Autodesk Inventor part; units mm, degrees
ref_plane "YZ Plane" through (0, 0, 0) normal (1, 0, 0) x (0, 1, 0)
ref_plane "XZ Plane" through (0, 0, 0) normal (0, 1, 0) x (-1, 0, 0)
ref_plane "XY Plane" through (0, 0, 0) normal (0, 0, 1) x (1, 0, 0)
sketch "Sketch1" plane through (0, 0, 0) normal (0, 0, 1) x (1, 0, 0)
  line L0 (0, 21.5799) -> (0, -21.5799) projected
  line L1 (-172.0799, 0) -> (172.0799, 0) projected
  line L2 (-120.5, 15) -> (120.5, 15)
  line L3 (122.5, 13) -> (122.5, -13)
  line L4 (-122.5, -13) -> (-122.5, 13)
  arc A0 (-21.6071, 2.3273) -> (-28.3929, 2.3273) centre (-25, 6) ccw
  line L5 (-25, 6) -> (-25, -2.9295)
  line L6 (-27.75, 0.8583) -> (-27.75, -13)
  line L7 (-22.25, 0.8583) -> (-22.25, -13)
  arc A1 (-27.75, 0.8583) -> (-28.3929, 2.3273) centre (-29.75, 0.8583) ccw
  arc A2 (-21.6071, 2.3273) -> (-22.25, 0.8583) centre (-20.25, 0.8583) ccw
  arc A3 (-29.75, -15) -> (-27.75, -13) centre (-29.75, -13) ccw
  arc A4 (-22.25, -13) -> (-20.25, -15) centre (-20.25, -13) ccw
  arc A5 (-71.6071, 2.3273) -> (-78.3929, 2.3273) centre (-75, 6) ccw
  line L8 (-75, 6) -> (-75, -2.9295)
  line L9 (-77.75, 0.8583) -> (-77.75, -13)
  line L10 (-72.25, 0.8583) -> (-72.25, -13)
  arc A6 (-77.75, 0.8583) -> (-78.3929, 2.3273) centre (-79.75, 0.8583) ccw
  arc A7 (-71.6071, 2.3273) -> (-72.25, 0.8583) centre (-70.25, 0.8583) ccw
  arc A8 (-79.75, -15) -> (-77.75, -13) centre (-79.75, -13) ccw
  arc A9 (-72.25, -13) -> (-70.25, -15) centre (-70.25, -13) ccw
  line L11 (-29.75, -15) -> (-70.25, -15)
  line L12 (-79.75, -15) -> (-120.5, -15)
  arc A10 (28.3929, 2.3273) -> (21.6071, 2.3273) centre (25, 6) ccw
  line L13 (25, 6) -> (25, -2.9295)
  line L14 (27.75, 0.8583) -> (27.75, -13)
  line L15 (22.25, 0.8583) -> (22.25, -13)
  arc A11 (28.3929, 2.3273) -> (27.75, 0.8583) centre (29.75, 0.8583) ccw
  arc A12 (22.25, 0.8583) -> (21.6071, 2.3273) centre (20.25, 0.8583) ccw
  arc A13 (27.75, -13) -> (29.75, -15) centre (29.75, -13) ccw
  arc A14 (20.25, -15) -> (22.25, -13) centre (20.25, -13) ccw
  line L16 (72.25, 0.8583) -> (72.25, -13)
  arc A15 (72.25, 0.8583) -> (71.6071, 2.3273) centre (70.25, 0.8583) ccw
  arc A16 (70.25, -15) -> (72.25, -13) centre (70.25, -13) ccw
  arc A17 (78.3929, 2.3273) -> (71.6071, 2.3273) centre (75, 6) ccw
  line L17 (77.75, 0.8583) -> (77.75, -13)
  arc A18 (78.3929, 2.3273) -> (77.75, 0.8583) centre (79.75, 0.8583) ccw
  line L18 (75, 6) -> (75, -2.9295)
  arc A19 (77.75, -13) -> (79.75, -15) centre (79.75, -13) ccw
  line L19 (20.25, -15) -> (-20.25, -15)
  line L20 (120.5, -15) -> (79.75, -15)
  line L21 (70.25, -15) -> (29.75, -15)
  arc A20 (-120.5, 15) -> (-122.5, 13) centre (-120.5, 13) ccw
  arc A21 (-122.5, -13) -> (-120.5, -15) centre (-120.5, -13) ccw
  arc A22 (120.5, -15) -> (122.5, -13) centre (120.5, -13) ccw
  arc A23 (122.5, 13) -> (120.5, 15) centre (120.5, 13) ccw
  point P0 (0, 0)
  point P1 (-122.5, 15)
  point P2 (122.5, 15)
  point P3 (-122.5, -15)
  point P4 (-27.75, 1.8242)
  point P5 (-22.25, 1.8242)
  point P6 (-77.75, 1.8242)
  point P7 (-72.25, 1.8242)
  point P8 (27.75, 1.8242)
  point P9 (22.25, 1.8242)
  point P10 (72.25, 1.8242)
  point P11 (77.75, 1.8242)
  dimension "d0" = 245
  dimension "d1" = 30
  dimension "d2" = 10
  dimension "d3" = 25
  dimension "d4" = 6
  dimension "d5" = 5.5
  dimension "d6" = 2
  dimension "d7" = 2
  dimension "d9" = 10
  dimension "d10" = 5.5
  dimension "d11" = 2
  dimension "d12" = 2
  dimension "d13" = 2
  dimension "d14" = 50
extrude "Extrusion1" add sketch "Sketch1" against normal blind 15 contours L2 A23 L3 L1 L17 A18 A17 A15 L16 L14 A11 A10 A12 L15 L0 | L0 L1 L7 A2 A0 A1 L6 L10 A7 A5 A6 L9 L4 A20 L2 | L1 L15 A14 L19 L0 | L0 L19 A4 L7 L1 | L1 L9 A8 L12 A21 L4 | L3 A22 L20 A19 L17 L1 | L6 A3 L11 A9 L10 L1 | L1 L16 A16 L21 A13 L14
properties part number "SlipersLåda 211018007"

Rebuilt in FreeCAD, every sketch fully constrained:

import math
import FreeCAD as App
import Part
import Sketcher
Q = App.Units.Quantity

doc = App.newDocument("Part")
body = doc.addObject("PartDesign::Body", "Body")

sketch1 = doc.addObject("Sketcher::SketchObject", "Sketch")
body.addObject(sketch1)
sketch1.AttachmentSupport = (doc.XY_Plane, [""])
sketch1.MapMode = "FlatFace"
sketch1.addGeometry([
    Part.LineSegment(App.Vector(120.5, 15, 0), App.Vector(-120.5, 15, 0)),
    Part.ArcOfCircle(Part.Circle(App.Vector(-120.5, 13, 0), App.Vector(0, 0, 1), 2), math.radians(90), math.radians(180)),
    Part.LineSegment(App.Vector(-122.5, 13, 0), App.Vector(-122.5, -13, 0)),
    Part.ArcOfCircle(Part.Circle(App.Vector(-120.5, -13, 0), App.Vector(0, 0, 1), 2), math.radians(180), math.radians(270)),
    Part.LineSegment(App.Vector(-120.5, -15, 0), App.Vector(-79.8, -15, 0)),
    Part.ArcOfCircle(Part.Circle(App.Vector(-79.8, -13, 0), App.Vector(0, 0, 1), 2), math.radians(-90), math.radians(0)),
    Part.LineSegment(App.Vector(-77.8, -13, 0), App.Vector(-77.8, 0.9, 0)),
    Part.ArcOfCircle(Part.Circle(App.Vector(-79.8, 0.9, 0), App.Vector(0, 0, 1), 2), math.radians(0), math.radians(47)),
    Part.ArcOfCircle(Part.Circle(App.Vector(-75, 6, 0), App.Vector(0, 0, 1), 5), math.radians(-47), math.radians(227)),
    Part.ArcOfCircle(Part.Circle(App.Vector(-70.2, 0.9, 0), App.Vector(0, 0, 1), 2), math.radians(133), math.radians(180)),
    Part.LineSegment(App.Vector(-72.2, 0.9, 0), App.Vector(-72.2, -13, 0)),
    Part.ArcOfCircle(Part.Circle(App.Vector(-70.2, -13, 0), App.Vector(0, 0, 1), 2), math.radians(180), math.radians(270)),
    Part.LineSegment(App.Vector(-70.2, -15, 0), App.Vector(-29.8, -15, 0)),
    Part.ArcOfCircle(Part.Circle(App.Vector(-29.8, -13, 0), App.Vector(0, 0, 1), 2), math.radians(-90), math.radians(0)),
    Part.LineSegment(App.Vector(-27.8, -13, 0), App.Vector(-27.8, 0.9, 0)),
    Part.ArcOfCircle(Part.Circle(App.Vector(-29.8, 0.9, 0), App.Vector(0, 0, 1), 2), math.radians(0), math.radians(47)),
    Part.ArcOfCircle(Part.Circle(App.Vector(-25, 6, 0), App.Vector(0, 0, 1), 5), math.radians(-47), math.radians(227)),
    Part.ArcOfCircle(Part.Circle(App.Vector(-20.2, 0.9, 0), App.Vector(0, 0, 1), 2), math.radians(133), math.radians(180)),
    Part.LineSegment(App.Vector(-22.2, 0.9, 0), App.Vector(-22.2, -13, 0)),
    Part.ArcOfCircle(Part.Circle(App.Vector(-20.2, -13, 0), App.Vector(0, 0, 1), 2), math.radians(180), math.radians(270)),
    Part.LineSegment(App.Vector(-20.2, -15, 0), App.Vector(20.2, -15, 0)),
    Part.ArcOfCircle(Part.Circle(App.Vector(20.2, -13, 0), App.Vector(0, 0, 1), 2), math.radians(-90), math.radians(0)),
    Part.LineSegment(App.Vector(22.2, -13, 0), App.Vector(22.2, 0.9, 0)),
    Part.ArcOfCircle(Part.Circle(App.Vector(20.2, 0.9, 0), App.Vector(0, 0, 1), 2), math.radians(0), math.radians(47)),
    Part.ArcOfCircle(Part.Circle(App.Vector(25, 6, 0), App.Vector(0, 0, 1), 5), math.radians(-47), math.radians(227)),
    Part.ArcOfCircle(Part.Circle(App.Vector(29.8, 0.9, 0), App.Vector(0, 0, 1), 2), math.radians(133), math.radians(180)),
    Part.LineSegment(App.Vector(27.8, 0.9, 0), App.Vector(27.8, -13, 0)),
    Part.ArcOfCircle(Part.Circle(App.Vector(29.8, -13, 0), App.Vector(0, 0, 1), 2), math.radians(180), math.radians(270)),
    Part.LineSegment(App.Vector(29.8, -15, 0), App.Vector(70.2, -15, 0)),
    Part.ArcOfCircle(Part.Circle(App.Vector(70.2, -13, 0), App.Vector(0, 0, 1), 2), math.radians(-90), math.radians(0)),
    Part.LineSegment(App.Vector(72.2, -13, 0), App.Vector(72.2, 0.9, 0)),
    Part.ArcOfCircle(Part.Circle(App.Vector(70.2, 0.9, 0), App.Vector(0, 0, 1), 2), math.radians(0), math.radians(47)),
    Part.ArcOfCircle(Part.Circle(App.Vector(75, 6, 0), App.Vector(0, 0, 1), 5), math.radians(-47), math.radians(227)),
    Part.ArcOfCircle(Part.Circle(App.Vector(79.8, 0.9, 0), App.Vector(0, 0, 1), 2), math.radians(133), math.radians(180)),
    Part.LineSegment(App.Vector(77.8, 0.9, 0), App.Vector(77.8, -13, 0)),
    Part.ArcOfCircle(Part.Circle(App.Vector(79.8, -13, 0), App.Vector(0, 0, 1), 2), math.radians(180), math.radians(270)),
    Part.LineSegment(App.Vector(79.8, -15, 0), App.Vector(120.5, -15, 0)),
    Part.ArcOfCircle(Part.Circle(App.Vector(120.5, -13, 0), App.Vector(0, 0, 1), 2), math.radians(-90), math.radians(0)),
    Part.LineSegment(App.Vector(122.5, -13, 0), App.Vector(122.5, 13, 0)),
    Part.ArcOfCircle(Part.Circle(App.Vector(120.5, 13, 0), App.Vector(0, 0, 1), 2), math.radians(0), math.radians(90)),
], False)
sketch1.addConstraint([
    Sketcher.Constraint("Tangent", 0, 2, 1, 1),
    Sketcher.Constraint("Tangent", 1, 2, 2, 1),
    Sketcher.Constraint("Tangent", 2, 2, 3, 1),
    Sketcher.Constraint("Tangent", 3, 2, 4, 1),
    Sketcher.Constraint("Tangent", 4, 2, 5, 1),
    Sketcher.Constraint("Tangent", 5, 2, 6, 1),
    Sketcher.Constraint("Tangent", 6, 2, 7, 1),
    Sketcher.Constraint("Tangent", 7, 2, 8, 2),
    Sketcher.Constraint("Tangent", 8, 1, 9, 1),
    Sketcher.Constraint("Tangent", 9, 2, 10, 1),
    Sketcher.Constraint("Tangent", 10, 2, 11, 1),
    Sketcher.Constraint("Tangent", 11, 2, 12, 1),
    Sketcher.Constraint("Tangent", 12, 2, 13, 1),
    Sketcher.Constraint("Tangent", 13, 2, 14, 1),
    Sketcher.Constraint("Tangent", 14, 2, 15, 1),
    Sketcher.Constraint("Tangent", 15, 2, 16, 2),
    Sketcher.Constraint("Tangent", 16, 1, 17, 1),
    Sketcher.Constraint("Tangent", 17, 2, 18, 1),
    Sketcher.Constraint("Tangent", 18, 2, 19, 1),
    Sketcher.Constraint("Tangent", 19, 2, 20, 1),
    Sketcher.Constraint("Tangent", 20, 2, 21, 1),
    Sketcher.Constraint("Tangent", 21, 2, 22, 1),
    Sketcher.Constraint("Tangent", 22, 2, 23, 1),
    Sketcher.Constraint("Tangent", 23, 2, 24, 2),
    Sketcher.Constraint("Tangent", 24, 1, 25, 1),
    Sketcher.Constraint("Tangent", 25, 2, 26, 1),
    Sketcher.Constraint("Tangent", 26, 2, 27, 1),
    Sketcher.Constraint("Tangent", 27, 2, 28, 1),
    Sketcher.Constraint("Tangent", 28, 2, 29, 1),
    Sketcher.Constraint("Tangent", 29, 2, 30, 1),
    Sketcher.Constraint("Tangent", 30, 2, 31, 1),
    Sketcher.Constraint("Tangent", 31, 2, 32, 2),
    Sketcher.Constraint("Tangent", 32, 1, 33, 1),
    Sketcher.Constraint("Tangent", 33, 2, 34, 1),
    Sketcher.Constraint("Tangent", 34, 2, 35, 1),
    Sketcher.Constraint("Tangent", 35, 2, 36, 1),
    Sketcher.Constraint("Tangent", 36, 2, 37, 1),
    Sketcher.Constraint("Tangent", 37, 2, 38, 1),
    Sketcher.Constraint("Tangent", 38, 2, 39, 1),
    Sketcher.Constraint("Tangent", 39, 2, 0, 1),
    Sketcher.Constraint("Horizontal", 0),
    Sketcher.Constraint("Vertical", 2),
    Sketcher.Constraint("Horizontal", 4),
    Sketcher.Constraint("Vertical", 6),
    Sketcher.Constraint("Vertical", 10),
    Sketcher.Constraint("Horizontal", 12),
    Sketcher.Constraint("Vertical", 14),
    Sketcher.Constraint("Vertical", 18),
    Sketcher.Constraint("Horizontal", 20),
    Sketcher.Constraint("Vertical", 22),
    Sketcher.Constraint("Vertical", 26),
    Sketcher.Constraint("Horizontal", 28),
    Sketcher.Constraint("Vertical", 30),
    Sketcher.Constraint("Vertical", 34),
    Sketcher.Constraint("Horizontal", 36),
    Sketcher.Constraint("Vertical", 38),
    Sketcher.Constraint("Equal", 1, 3),
    Sketcher.Constraint("Equal", 3, 5),
    Sketcher.Constraint("Equal", 5, 7),
    Sketcher.Constraint("Equal", 7, 9),
    Sketcher.Constraint("Equal", 9, 11),
    Sketcher.Constraint("Equal", 11, 13),
    Sketcher.Constraint("Equal", 13, 15),
    Sketcher.Constraint("Equal", 8, 16),
    Sketcher.Constraint("Equal", 15, 17),
    Sketcher.Constraint("Equal", 17, 19),
    Sketcher.Constraint("Equal", 19, 21),
    Sketcher.Constraint("Equal", 21, 23),
    Sketcher.Constraint("Equal", 16, 24),
    Sketcher.Constraint("Equal", 23, 25),
    Sketcher.Constraint("Equal", 25, 27),
    Sketcher.Constraint("Equal", 27, 29),
    Sketcher.Constraint("Equal", 29, 31),
    Sketcher.Constraint("Equal", 24, 32),
    Sketcher.Constraint("Equal", 31, 33),
    Sketcher.Constraint("Equal", 33, 35),
    Sketcher.Constraint("Equal", 35, 37),
    Sketcher.Constraint("Equal", 37, 39),
    Sketcher.Constraint("Symmetric", 1, 3, 37, 3, -1, 1),
    Sketcher.Constraint("Symmetric", 17, 3, 23, 3, -2),
    Sketcher.Constraint("Symmetric", 15, 3, 25, 3, -2),
    Sketcher.Constraint("Symmetric", 11, 3, 29, 3, -2),
    Sketcher.Constraint("Symmetric", 8, 3, 32, 3, -2),
    Sketcher.Constraint("Symmetric", 5, 3, 35, 3, -2),
    Sketcher.Constraint("Horizontal", 7, 3, 9, 3),
    Sketcher.Constraint("Horizontal", 5, 3, 11, 3),
    Sketcher.Constraint("Horizontal", 9, 3, 15, 3),
    Sketcher.Constraint("Horizontal", 8, 3, 16, 3),
    Sketcher.Constraint("Horizontal", 15, 3, 17, 3),
    Sketcher.Constraint("Horizontal", 13, 3, 19, 3),
    Sketcher.Constraint("Equal", 12, 20),
    Sketcher.Constraint("Radius", 1, Q("2 mm")),
    Sketcher.Constraint("Radius", 8, Q("5 mm")),
    Sketcher.Constraint("DistanceY", -1, 1, 8, 3, Q("6 mm")),
    Sketcher.Constraint("DistanceX", 16, 3, -1, 1, Q("25 mm")),
    Sketcher.Constraint("DistanceX", 0, 2, 0, 1, Q("241 mm")),
    Sketcher.Constraint("DistanceY", 2, 2, 2, 1, Q("26 mm")),
    Sketcher.Constraint("DistanceX", 12, 1, 12, 2, Q("40.5 mm")),
])
pad1 = doc.addObject("PartDesign::Pad", "Pad")
body.addObject(pad1)
pad1.Profile = sketch1
pad1.Length = 15
pad1.Reversed = True

doc.recompute()
